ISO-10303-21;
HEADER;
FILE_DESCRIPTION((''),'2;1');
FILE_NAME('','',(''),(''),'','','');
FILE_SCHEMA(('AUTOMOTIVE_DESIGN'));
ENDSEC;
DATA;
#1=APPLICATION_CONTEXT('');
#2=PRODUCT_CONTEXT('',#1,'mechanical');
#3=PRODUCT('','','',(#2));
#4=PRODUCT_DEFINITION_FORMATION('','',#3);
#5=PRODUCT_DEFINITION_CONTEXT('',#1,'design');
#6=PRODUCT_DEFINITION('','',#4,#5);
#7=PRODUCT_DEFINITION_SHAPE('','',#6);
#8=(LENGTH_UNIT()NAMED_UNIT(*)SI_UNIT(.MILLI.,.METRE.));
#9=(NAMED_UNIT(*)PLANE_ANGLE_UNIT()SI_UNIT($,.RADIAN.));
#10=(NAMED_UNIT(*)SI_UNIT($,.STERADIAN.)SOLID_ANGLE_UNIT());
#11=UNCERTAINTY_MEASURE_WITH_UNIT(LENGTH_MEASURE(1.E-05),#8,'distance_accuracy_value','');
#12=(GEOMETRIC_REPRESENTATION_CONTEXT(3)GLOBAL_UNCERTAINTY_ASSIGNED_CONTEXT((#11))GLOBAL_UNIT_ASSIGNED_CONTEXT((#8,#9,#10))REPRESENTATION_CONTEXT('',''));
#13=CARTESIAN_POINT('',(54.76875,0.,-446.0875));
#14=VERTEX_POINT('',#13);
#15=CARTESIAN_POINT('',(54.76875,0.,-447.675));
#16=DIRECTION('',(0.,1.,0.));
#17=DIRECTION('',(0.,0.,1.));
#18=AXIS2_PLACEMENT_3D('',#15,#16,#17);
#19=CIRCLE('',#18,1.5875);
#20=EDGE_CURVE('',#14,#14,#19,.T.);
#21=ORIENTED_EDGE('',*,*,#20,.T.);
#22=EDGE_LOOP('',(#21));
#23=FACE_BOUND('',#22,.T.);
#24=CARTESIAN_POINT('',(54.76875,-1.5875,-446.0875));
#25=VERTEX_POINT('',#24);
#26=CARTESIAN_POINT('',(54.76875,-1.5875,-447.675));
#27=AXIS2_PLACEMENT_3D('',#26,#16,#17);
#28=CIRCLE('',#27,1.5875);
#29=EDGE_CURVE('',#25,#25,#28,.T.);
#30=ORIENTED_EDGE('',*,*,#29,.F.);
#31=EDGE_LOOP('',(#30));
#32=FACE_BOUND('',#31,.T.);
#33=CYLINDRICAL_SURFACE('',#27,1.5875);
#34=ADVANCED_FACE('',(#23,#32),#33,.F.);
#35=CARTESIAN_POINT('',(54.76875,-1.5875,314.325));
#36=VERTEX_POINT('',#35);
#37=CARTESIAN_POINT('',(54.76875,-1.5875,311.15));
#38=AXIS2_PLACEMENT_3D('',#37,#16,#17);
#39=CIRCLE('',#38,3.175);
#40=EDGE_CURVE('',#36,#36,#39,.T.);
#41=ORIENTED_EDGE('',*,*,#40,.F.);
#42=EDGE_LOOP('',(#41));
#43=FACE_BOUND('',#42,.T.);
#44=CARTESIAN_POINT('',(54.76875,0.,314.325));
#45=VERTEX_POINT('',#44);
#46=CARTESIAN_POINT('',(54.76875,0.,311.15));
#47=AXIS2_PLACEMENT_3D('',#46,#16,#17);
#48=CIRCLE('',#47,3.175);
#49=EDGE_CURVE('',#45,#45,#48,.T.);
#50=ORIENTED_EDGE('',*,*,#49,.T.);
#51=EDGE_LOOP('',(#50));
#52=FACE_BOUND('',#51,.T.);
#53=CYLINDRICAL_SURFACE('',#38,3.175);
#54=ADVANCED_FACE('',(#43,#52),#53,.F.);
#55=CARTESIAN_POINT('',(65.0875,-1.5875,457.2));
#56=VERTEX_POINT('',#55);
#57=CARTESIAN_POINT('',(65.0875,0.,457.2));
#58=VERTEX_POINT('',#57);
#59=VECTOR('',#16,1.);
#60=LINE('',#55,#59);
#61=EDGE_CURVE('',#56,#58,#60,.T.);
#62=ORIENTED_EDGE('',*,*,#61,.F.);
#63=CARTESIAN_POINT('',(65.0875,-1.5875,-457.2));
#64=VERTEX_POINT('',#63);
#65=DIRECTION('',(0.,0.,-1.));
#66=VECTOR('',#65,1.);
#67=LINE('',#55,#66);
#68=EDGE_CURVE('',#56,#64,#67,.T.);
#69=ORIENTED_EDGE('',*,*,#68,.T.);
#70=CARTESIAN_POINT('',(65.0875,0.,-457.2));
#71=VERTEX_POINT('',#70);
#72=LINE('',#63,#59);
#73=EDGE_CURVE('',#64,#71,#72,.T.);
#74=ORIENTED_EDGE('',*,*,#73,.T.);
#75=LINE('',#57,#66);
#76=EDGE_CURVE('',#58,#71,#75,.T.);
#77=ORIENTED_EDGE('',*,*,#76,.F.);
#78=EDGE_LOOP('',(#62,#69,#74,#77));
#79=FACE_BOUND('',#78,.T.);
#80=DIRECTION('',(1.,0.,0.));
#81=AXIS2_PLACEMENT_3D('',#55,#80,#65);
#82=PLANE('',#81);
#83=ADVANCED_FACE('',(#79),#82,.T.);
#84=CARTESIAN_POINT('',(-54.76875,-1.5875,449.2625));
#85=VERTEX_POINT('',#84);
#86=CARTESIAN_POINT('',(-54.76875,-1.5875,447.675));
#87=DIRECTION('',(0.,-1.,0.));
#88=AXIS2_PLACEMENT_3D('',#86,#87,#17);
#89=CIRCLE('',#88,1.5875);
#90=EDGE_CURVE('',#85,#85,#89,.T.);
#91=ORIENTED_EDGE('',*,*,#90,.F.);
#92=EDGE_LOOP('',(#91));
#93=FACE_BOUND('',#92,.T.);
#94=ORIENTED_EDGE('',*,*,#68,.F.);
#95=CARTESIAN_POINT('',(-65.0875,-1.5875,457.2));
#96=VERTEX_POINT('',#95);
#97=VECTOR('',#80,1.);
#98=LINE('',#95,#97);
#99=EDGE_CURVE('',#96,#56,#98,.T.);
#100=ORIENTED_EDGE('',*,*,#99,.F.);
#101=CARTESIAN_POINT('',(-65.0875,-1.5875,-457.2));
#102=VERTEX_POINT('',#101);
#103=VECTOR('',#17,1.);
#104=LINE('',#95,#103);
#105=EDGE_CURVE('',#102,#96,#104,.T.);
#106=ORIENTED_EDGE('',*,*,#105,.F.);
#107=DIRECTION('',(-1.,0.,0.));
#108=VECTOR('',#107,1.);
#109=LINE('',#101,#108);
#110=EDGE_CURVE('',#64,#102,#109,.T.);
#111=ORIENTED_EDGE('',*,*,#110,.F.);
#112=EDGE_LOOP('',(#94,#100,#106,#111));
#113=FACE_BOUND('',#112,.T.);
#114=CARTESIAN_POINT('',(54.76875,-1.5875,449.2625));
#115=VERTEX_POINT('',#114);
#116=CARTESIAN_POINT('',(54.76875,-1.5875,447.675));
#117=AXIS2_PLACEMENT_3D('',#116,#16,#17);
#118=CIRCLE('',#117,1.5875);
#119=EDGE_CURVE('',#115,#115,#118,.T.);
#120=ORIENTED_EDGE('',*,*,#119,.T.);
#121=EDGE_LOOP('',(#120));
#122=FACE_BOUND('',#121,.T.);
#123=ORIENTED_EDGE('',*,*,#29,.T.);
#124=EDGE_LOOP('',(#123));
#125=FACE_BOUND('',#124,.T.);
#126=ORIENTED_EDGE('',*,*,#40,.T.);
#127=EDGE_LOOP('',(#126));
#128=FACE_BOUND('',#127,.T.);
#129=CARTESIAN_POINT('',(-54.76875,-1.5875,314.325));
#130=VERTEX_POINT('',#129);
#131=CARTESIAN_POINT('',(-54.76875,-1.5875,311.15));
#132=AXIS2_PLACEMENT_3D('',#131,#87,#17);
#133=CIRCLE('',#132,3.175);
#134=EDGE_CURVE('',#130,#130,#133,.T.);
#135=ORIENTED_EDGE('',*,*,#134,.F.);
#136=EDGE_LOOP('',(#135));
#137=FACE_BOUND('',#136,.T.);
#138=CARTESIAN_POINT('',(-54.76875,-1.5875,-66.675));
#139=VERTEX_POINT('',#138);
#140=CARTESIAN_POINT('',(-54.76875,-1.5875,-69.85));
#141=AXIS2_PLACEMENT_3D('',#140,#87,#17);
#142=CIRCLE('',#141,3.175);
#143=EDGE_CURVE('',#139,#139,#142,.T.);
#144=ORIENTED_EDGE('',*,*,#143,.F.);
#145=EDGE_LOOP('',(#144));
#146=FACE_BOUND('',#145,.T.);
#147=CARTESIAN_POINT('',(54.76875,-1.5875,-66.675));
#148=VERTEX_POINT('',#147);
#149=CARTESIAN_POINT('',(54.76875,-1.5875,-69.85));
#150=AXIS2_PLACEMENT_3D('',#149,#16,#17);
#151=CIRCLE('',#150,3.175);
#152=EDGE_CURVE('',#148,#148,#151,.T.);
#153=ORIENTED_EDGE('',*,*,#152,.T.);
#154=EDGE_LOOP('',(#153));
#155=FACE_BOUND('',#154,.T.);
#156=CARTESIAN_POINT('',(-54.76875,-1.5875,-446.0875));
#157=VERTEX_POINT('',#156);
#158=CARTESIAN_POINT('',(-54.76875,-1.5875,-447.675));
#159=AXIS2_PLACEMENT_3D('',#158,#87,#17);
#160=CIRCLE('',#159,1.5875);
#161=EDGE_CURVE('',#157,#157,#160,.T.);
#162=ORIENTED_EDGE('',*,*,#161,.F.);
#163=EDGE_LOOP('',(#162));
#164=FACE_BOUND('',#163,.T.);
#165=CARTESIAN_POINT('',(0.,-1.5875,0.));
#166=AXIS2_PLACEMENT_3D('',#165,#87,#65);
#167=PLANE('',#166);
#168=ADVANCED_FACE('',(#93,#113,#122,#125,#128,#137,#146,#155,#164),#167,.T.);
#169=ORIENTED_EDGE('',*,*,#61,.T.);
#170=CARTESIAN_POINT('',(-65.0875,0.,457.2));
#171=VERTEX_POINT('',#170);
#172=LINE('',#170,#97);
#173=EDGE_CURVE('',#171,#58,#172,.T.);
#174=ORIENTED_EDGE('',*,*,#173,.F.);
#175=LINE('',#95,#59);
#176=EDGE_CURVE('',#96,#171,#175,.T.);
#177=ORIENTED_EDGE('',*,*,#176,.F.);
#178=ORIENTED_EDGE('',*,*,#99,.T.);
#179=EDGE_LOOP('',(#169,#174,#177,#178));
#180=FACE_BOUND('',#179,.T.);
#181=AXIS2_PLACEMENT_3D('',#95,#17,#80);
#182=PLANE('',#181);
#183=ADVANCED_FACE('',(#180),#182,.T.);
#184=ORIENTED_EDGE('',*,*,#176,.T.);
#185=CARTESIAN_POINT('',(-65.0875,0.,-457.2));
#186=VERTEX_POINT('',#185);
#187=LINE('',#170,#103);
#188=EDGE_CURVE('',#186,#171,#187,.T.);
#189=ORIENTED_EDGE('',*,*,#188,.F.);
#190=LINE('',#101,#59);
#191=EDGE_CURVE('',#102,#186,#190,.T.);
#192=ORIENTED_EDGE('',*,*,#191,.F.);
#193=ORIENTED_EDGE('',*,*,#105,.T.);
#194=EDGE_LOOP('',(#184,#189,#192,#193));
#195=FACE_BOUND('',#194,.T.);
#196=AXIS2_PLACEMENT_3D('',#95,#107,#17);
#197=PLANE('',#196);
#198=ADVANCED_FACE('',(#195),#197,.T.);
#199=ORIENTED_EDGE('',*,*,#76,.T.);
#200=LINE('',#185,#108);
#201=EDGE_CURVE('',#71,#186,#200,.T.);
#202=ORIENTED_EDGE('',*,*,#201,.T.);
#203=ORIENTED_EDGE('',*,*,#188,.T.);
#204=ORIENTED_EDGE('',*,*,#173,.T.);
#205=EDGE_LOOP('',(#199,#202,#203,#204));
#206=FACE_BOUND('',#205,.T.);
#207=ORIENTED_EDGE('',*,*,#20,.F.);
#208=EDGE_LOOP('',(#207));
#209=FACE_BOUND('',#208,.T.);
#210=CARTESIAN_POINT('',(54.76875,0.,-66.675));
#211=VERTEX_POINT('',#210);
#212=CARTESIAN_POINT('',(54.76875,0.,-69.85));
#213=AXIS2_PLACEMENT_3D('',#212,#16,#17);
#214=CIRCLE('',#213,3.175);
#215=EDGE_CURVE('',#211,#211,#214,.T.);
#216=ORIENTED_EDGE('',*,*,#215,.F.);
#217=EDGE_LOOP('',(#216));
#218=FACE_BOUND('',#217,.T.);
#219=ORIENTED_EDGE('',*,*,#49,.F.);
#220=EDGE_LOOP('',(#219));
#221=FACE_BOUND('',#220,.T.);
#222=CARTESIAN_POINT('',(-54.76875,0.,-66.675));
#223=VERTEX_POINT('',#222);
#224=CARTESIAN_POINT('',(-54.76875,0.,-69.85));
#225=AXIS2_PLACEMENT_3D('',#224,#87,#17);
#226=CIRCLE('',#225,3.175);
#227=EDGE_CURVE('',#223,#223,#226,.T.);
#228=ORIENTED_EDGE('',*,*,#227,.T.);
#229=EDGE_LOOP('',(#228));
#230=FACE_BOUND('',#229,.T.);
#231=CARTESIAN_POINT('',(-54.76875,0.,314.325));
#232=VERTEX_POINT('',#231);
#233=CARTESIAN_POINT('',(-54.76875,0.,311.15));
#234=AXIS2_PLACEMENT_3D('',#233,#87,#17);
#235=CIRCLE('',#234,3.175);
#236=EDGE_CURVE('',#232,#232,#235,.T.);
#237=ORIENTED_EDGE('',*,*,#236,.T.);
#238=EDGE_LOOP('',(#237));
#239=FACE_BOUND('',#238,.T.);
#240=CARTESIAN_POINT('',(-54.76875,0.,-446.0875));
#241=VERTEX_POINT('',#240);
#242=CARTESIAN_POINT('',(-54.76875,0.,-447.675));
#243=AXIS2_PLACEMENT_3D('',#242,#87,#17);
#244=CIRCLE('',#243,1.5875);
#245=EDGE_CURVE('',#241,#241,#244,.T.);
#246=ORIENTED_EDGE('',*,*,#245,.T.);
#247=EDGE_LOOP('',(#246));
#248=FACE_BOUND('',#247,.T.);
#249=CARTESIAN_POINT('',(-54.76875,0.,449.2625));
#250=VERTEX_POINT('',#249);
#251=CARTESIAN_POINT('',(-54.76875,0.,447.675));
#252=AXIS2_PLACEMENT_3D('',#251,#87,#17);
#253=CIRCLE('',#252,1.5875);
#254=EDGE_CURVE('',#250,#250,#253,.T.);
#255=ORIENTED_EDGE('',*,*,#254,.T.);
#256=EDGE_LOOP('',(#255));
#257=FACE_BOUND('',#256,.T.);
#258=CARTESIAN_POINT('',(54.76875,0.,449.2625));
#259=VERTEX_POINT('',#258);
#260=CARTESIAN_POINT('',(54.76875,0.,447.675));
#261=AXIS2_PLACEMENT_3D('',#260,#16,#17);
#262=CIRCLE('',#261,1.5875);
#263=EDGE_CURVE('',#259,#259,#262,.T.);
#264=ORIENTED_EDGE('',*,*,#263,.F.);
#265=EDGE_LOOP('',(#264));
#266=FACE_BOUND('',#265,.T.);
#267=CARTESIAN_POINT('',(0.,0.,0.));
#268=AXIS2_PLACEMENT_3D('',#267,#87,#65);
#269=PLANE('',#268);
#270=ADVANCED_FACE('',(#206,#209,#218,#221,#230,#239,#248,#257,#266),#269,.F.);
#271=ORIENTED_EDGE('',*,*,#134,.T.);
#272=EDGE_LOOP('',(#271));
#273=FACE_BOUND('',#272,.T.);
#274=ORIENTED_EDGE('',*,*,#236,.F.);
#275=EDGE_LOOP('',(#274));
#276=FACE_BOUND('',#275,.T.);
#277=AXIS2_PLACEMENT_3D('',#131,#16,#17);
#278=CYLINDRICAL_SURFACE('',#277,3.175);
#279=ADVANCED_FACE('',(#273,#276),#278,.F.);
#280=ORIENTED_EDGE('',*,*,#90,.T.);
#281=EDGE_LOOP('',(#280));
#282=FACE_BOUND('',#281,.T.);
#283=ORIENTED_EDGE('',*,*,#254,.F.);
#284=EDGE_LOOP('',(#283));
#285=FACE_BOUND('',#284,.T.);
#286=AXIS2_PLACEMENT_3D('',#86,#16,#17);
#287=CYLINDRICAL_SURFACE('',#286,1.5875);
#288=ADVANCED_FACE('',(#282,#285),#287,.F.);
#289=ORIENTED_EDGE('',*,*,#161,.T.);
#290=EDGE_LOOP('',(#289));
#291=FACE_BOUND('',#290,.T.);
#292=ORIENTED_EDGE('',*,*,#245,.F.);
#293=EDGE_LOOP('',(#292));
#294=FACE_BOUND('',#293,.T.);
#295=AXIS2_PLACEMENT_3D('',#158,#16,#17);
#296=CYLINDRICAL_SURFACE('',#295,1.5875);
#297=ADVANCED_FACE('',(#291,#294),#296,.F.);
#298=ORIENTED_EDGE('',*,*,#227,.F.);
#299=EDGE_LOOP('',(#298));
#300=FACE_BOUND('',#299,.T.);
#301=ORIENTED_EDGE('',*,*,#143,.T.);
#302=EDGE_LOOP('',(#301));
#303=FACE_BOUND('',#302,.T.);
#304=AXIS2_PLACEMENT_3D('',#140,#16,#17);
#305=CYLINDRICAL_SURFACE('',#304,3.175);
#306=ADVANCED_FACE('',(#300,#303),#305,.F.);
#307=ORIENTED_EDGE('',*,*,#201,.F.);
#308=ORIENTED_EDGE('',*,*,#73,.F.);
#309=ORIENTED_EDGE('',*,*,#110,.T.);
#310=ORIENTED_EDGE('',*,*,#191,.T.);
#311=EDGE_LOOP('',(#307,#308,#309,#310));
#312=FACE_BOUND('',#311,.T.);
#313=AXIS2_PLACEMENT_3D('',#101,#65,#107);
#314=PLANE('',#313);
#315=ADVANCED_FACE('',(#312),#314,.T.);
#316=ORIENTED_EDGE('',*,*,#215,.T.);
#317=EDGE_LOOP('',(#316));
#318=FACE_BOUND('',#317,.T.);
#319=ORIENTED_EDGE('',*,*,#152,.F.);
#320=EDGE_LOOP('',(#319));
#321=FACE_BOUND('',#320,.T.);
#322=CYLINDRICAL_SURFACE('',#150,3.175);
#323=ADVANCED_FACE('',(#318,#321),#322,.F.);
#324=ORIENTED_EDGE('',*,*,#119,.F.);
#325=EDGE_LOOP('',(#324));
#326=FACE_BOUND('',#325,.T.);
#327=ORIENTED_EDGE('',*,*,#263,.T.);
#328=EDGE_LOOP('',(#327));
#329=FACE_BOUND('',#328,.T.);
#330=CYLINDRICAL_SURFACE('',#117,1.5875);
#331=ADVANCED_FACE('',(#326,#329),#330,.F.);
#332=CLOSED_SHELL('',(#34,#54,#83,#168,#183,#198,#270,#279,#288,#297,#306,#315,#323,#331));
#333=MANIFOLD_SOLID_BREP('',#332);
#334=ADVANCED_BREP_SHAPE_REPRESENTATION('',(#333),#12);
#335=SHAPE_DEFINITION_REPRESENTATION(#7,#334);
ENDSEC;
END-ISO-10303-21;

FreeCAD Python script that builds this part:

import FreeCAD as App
import Part
import Sketcher
from FreeCAD import Vector
Q = App.Units.Quantity


def add_polygon(sketch, points):
    """Adds a closed chain of lines whose ends are joined by coincident constraints."""
    first, n = sketch.GeometryCount, len(points)
    for a, b in zip(points, points[1:] + points[:1]):
        sketch.addGeometry(Part.LineSegment(App.Vector(*a, 0), App.Vector(*b, 0)), False)
    for i in range(n):
        sketch.addConstraint(Sketcher.Constraint("Coincident", first + i, 2, first + (i + 1) % n, 1))

doc = App.newDocument("Part")
params = doc.addObject("Spreadsheet::Sheet", "Params")
for row, (alias, value) in enumerate([
    ("sketch1_height", "36 in"),
    ("sketch1_width", "5.125 in"),
    ("pad1_length", "0.0625 in"),
    ("sketch2_diameter", "0.25 in"),
    ("sketch2_diameter2", "0.125 in"),
], start=1):
    params.set(f"A{row}", alias)
    params.set(f"B{row}", "=" + value)
    params.setAlias(f"B{row}", alias)

body = doc.addObject("PartDesign::Body", "Body")

# Sketch on XZ plane
sketch1 = body.newObject("Sketcher::SketchObject", "Sketch")
sketch1.AttachmentSupport = (doc.getObject("XZ_Plane"), [""])
sketch1.MapMode = "FlatFace"
add_polygon(sketch1, [(-65, -457), (-65, 457), (65, 457), (65, -457)])  # lines 0-3
sketch1.addConstraint([
    Sketcher.Constraint("Vertical", 0),
    Sketcher.Constraint("Horizontal", 1),
    Sketcher.Constraint("Vertical", 2),
    Sketcher.Constraint("Horizontal", 3),
    Sketcher.Constraint("Symmetric", 0, 2, 2, 2, -1, 1),
    Sketcher.Constraint("DistanceY", 0, 1, 0, 2, Q("36 in")),
    Sketcher.Constraint("DistanceX", 1, 1, 1, 2, Q("5.125 in")),
])
sketch1.setExpression("Constraints[9]", "Params.sketch1_height")
sketch1.setExpression("Constraints[10]", "Params.sketch1_width")
pad1 = body.newObject("PartDesign::Pad", "Pad")
pad1.Profile = sketch1
pad1.setExpression("Length", "Params.pad1_length")

# Sketch on XZ plane
sketch2 = body.newObject("Sketcher::SketchObject", "Sketch001")
sketch2.AttachmentSupport = (doc.getObject("XZ_Plane"), [""])
sketch2.MapMode = "FlatFace"
sketch2.addGeometry([
    Part.Circle(Vector(54.8, 447.7, 0), Vector(0, 0, 1), 1.6),
    Part.Circle(Vector(54.8, 311.1, 0), Vector(0, 0, 1), 3.2),
    Part.Circle(Vector(54.8, -447.7, 0), Vector(0, 0, 1), 1.6),
    Part.Circle(Vector(54.8, -69.8, 0), Vector(0, 0, 1), 3.2),
], False)
sketch2.addConstraint([
    Sketcher.Constraint("Equal", 0, 2),
    Sketcher.Constraint("Equal", 1, 3),
    Sketcher.Constraint("Symmetric", 0, 3, 2, 3, -1),
    Sketcher.Constraint("Vertical", 0, 3, 1, 3),
    Sketcher.Constraint("Vertical", 2, 3, 3, 3),
    Sketcher.Constraint("Diameter", 1, Q("0.25 in")),
    Sketcher.Constraint("Diameter", 0, Q("0.125 in")),
    Sketcher.Constraint("DistanceY", 3, 3, 1, 3, Q("15 in")),
    Sketcher.Constraint("DistanceY", -1, 1, 1, 3, Q("12.25 in")),
    Sketcher.Constraint("DistanceY", 2, 3, 0, 3, Q("35.25 in")),
    Sketcher.Constraint("DistanceX", -1, 1, 0, 3, Q("2.15625 in")),
])
sketch2.setExpression("Constraints[5]", "Params.sketch2_diameter")
sketch2.setExpression("Constraints[6]", "Params.sketch2_diameter2")
pocket1 = body.newObject("PartDesign::Pocket", "Pocket")
pocket1.Profile = sketch2
pocket1.Type = "ThroughAll"
pocket1.Reversed = True
doc.recompute()

mirrored = body.newObject("PartDesign::Mirrored", "Mirrored")
mirrored.Originals = [pocket1]
mirrored.MirrorPlane = (doc.getObject("YZ_Plane"), [""])
body.Tip = mirrored

doc.recompute()
